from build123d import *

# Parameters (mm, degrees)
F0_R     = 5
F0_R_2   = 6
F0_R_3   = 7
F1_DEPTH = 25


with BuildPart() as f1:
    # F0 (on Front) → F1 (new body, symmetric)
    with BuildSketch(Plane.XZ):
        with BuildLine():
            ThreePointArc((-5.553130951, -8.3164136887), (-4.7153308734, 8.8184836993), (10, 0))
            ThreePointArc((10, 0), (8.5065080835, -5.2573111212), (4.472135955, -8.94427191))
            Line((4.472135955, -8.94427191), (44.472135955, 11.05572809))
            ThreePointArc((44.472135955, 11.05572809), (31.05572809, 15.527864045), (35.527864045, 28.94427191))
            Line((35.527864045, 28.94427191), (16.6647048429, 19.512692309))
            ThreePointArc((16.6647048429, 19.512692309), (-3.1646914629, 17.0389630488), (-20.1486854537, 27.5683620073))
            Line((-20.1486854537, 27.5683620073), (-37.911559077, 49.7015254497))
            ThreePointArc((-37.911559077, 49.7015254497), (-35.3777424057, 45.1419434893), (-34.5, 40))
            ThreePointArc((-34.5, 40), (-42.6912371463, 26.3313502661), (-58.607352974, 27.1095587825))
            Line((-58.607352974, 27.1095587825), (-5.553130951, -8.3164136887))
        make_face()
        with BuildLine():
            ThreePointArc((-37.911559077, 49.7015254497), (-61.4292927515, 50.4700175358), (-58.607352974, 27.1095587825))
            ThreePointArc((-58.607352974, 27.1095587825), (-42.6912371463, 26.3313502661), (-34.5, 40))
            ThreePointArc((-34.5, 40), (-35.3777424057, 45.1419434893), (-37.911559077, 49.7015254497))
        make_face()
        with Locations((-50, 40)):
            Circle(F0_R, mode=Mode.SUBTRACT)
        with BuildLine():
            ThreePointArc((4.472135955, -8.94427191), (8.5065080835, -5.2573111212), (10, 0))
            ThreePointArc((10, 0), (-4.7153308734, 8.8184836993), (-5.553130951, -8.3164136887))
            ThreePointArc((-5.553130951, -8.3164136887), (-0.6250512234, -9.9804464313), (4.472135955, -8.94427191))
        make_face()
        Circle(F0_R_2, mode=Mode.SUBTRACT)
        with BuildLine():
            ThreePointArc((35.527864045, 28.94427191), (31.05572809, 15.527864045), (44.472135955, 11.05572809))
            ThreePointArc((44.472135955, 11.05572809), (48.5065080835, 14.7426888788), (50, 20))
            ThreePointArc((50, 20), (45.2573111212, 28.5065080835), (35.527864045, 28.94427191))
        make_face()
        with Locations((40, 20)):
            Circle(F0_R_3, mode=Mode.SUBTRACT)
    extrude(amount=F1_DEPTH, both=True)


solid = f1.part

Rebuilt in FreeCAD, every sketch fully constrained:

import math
import FreeCAD as App
import Part
import Sketcher
Q = App.Units.Quantity

doc = App.newDocument("Part")
body = doc.addObject("PartDesign::Body", "Body")

sketch1 = body.newObject("Sketcher::SketchObject", "Sketch")
sketch1.AttachmentSupport = (doc.getObject("XZ_Plane"), [""])
sketch1.MapMode = "FlatFace"
sketch1.addGeometry([
    Part.LineSegment(App.Vector(-58.607353, 27.109559, 0), App.Vector(-5.553131, -8.316414, 0)),
    Part.ArcOfCircle(Part.Circle(App.Vector(0, 0, 0), App.Vector(0, 0, 1), 10), math.radians(-123.732283), math.radians(-63.434949)),
    Part.LineSegment(App.Vector(4.472136, -8.944272, 0), App.Vector(44.472136, 11.055728, 0)),
    Part.ArcOfCircle(Part.Circle(App.Vector(40, 20, 0), App.Vector(0, 0, 1), 10), math.radians(-63.434949), math.radians(0)),
    Part.ArcOfCircle(Part.Circle(App.Vector(40, 20, 0), App.Vector(0, 0, 1), 10), math.radians(0), math.radians(116.565051)),
    Part.LineSegment(App.Vector(35.527864, 28.944272, 0), App.Vector(16.664705, 19.512692, 0)),
    Part.ArcOfCircle(Part.Circle(App.Vector(3.248297, 46.345508, 0), App.Vector(0, 0, 1), 30), math.radians(-141.251367), math.radians(-63.434949)),
    Part.LineSegment(App.Vector(-20.148685, 27.568362, 0), App.Vector(-37.911559, 49.701525, 0)),
    Part.ArcOfCircle(Part.Circle(App.Vector(-50, 40, 0), App.Vector(0, 0, 1), 15.5), math.radians(38.748633), math.radians(236.267717)),
    Part.Circle(App.Vector(0, 0, 0), App.Vector(0, 0, 1), 6),
    Part.Circle(App.Vector(-50, 40, 0), App.Vector(0, 0, 1), 5),
    Part.Circle(App.Vector(40, 20, 0), App.Vector(0, 0, 1), 7),
], False)
sketch1.addConstraint([
    Sketcher.Constraint("Tangent", 0, 2, 1, 1),
    Sketcher.Constraint("Tangent", 1, 2, 2, 1),
    Sketcher.Constraint("Tangent", 2, 2, 3, 1),
    Sketcher.Constraint("Tangent", 3, 2, 4, 1),
    Sketcher.Constraint("Tangent", 4, 2, 5, 1),
    Sketcher.Constraint("Tangent", 5, 2, 6, 2),
    Sketcher.Constraint("Tangent", 6, 1, 7, 1),
    Sketcher.Constraint("Tangent", 7, 2, 8, 1),
    Sketcher.Constraint("Tangent", 8, 2, 0, 1),
    Sketcher.Constraint("Coincident", 1, 3, -1, 1),
    Sketcher.Constraint("Coincident", 9, 3, -1, 1),
    Sketcher.Constraint("Coincident", 10, 3, 8, 3),
    Sketcher.Constraint("Coincident", 11, 3, 3, 3),
    Sketcher.Constraint("Equal", 1, 3),
    Sketcher.Constraint("Equal", 3, 4),
    Sketcher.Constraint("Parallel", 2, 5),
    Sketcher.Constraint("Horizontal", 11, 3, 3, 2),
    Sketcher.Constraint("Diameter", 9, Q("12 mm")),
    Sketcher.Constraint("Diameter", 10, Q("10 mm")),
    Sketcher.Constraint("Diameter", 11, Q("14 mm")),
    Sketcher.Constraint("Radius", 1, Q("10 mm")),
    Sketcher.Constraint("Radius", 6, Q("30 mm")),
    Sketcher.Constraint("Radius", 8, Q("15.5 mm")),
    Sketcher.Constraint("DistanceX", -1, 1, 3, 3, Q("40 mm")),
    Sketcher.Constraint("DistanceY", -1, 1, 3, 3, Q("20 mm")),
    Sketcher.Constraint("DistanceX", 8, 3, -1, 1, Q("50 mm")),
    Sketcher.Constraint("DistanceY", -1, 1, 8, 3, Q("40 mm")),
    Sketcher.Constraint("Distance", 7, Q("28.37951 mm")),
])
pad1 = body.newObject("PartDesign::Pad", "Pad")
pad1.Profile = sketch1
pad1.Length = 50
pad1.Midplane = True

doc.recompute()
